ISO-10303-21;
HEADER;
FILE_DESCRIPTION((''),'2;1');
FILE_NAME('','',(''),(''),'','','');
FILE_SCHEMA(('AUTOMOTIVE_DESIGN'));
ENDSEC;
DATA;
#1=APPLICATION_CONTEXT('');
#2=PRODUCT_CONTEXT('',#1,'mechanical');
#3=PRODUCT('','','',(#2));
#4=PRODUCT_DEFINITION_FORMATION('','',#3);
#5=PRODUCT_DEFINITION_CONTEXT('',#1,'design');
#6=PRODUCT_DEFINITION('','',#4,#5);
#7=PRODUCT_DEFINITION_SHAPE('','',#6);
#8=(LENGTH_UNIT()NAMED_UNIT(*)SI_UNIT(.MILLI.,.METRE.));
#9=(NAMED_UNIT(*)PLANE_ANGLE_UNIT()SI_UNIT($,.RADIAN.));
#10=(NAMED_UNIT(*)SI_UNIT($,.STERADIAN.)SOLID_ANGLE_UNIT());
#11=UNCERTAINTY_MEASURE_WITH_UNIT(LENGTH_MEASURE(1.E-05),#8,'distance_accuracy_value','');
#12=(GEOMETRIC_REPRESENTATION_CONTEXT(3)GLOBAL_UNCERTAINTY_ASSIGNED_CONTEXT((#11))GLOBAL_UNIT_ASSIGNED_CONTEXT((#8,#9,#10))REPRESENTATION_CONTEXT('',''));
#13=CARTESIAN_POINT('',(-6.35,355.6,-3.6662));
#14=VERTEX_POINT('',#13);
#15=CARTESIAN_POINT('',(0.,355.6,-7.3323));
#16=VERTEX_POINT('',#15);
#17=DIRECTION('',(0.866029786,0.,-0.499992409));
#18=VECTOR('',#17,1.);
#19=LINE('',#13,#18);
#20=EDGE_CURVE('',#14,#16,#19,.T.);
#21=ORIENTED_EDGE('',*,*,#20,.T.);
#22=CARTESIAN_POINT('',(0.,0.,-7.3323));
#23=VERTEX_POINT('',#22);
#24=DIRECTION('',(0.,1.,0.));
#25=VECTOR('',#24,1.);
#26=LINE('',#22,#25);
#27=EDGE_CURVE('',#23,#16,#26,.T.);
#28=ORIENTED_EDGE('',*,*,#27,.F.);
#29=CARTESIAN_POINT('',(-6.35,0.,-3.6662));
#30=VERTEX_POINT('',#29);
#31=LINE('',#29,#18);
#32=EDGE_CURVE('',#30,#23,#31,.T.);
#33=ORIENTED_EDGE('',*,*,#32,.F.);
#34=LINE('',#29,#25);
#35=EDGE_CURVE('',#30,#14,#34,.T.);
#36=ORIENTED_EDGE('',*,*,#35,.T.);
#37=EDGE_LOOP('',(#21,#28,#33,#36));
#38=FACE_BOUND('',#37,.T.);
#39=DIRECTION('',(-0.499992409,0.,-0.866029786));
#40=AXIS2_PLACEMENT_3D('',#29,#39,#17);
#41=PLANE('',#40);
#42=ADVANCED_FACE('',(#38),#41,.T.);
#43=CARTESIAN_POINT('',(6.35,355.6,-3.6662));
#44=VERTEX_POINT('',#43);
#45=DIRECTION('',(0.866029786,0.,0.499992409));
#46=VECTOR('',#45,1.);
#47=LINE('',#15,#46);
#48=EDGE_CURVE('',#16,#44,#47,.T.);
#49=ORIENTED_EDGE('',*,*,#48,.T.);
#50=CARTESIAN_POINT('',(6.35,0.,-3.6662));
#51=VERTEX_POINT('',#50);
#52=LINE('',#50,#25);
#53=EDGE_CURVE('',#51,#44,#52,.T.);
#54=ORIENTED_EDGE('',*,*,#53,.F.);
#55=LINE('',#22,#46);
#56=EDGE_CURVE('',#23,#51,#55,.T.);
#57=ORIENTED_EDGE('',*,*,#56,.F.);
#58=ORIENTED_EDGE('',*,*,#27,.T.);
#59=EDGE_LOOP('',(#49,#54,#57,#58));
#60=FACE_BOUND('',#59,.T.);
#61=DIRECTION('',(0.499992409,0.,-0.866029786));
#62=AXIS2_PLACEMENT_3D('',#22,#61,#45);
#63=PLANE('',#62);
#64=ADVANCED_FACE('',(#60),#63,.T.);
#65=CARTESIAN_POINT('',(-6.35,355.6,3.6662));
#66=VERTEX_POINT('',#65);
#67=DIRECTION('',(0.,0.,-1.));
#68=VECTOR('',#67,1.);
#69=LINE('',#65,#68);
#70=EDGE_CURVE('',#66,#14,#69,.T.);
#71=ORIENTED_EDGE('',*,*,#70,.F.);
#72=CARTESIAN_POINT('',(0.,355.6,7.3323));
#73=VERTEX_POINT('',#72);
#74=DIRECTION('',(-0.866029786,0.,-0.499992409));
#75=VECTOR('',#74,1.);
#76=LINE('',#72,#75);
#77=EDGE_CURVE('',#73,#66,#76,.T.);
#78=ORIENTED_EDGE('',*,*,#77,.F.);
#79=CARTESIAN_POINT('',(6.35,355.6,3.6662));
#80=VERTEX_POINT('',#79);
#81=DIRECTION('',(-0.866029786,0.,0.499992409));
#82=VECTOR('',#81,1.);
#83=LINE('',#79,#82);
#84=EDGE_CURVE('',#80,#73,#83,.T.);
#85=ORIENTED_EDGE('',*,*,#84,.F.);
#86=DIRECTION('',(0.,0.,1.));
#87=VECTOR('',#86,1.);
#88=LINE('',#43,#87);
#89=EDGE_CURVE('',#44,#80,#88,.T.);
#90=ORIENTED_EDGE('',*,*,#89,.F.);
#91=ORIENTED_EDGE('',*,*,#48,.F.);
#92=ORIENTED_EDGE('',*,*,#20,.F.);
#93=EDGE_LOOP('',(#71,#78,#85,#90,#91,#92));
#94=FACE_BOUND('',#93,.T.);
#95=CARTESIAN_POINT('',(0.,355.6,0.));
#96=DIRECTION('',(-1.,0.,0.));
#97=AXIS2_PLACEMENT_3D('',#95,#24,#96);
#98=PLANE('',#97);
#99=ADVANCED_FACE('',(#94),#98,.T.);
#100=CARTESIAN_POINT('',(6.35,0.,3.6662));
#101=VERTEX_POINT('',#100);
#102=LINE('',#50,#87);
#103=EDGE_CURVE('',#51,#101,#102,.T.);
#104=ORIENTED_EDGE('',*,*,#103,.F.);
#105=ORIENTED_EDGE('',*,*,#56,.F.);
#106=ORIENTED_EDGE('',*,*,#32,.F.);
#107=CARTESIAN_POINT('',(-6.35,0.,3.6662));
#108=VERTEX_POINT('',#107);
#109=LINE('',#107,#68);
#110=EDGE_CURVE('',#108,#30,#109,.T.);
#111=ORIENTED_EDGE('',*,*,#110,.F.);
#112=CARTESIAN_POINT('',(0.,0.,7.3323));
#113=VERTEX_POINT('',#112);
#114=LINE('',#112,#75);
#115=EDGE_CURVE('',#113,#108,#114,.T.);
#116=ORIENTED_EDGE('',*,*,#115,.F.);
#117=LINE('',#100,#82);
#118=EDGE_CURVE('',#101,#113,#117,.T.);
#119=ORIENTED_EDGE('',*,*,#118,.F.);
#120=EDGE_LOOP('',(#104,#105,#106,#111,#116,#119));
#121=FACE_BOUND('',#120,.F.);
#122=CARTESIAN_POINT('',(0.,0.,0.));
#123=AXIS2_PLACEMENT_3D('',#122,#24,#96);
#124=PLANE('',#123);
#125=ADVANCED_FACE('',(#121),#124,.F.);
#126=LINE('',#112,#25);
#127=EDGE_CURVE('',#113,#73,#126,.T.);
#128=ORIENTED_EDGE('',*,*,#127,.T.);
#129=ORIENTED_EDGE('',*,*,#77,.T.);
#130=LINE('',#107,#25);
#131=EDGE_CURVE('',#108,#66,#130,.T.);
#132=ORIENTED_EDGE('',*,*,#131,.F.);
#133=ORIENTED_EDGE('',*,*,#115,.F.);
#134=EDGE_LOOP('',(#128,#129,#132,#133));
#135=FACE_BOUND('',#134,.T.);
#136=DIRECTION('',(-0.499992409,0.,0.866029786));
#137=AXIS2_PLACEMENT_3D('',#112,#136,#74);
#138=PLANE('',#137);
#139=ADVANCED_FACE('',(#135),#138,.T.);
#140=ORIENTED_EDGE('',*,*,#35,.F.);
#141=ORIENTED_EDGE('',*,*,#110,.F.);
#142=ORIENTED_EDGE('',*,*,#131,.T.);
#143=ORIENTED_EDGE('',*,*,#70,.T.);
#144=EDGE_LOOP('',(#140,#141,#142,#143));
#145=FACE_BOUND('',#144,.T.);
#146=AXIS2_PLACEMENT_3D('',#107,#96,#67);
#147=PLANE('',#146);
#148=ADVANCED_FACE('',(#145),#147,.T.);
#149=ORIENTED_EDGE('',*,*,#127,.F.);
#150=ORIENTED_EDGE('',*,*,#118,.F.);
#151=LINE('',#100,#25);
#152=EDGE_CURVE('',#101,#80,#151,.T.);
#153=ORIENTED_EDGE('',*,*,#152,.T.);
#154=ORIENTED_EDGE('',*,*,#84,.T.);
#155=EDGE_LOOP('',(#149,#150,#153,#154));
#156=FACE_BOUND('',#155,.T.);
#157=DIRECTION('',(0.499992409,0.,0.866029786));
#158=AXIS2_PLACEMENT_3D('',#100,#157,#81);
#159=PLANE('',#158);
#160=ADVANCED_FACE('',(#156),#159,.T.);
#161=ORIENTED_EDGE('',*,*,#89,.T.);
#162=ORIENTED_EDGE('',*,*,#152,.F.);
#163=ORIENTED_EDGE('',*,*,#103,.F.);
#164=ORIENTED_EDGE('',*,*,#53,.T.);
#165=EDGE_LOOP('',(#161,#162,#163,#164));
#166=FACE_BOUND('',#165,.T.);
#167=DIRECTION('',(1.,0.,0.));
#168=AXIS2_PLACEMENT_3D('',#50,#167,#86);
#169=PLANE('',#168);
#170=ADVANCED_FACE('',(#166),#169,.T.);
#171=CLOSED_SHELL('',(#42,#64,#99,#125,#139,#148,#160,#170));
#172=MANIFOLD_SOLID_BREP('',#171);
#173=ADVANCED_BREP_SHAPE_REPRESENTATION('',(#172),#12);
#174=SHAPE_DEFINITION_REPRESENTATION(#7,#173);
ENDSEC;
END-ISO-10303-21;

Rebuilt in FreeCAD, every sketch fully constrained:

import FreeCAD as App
import Part
import Sketcher

V = App.Vector
Q = App.Units.Quantity


def add_polygon(sketch, points):
    """Adds a closed chain of lines whose ends are joined by coincident constraints."""
    first, n = sketch.GeometryCount, len(points)
    for a, b in zip(points, points[1:] + points[:1]):
        sketch.addGeometry(Part.LineSegment(App.Vector(*a, 0), App.Vector(*b, 0)), False)
    for i in range(n):
        sketch.addConstraint(Sketcher.Constraint("Coincident", first + i, 2, first + (i + 1) % n, 1))

doc = App.newDocument("Part")
body = doc.addObject("PartDesign::Body", "Body")

sketch1 = doc.addObject("Sketcher::SketchObject", "Sketch")
body.addObject(sketch1)
sketch1.AttachmentSupport = (doc.XZ_Plane, [""])
sketch1.MapMode = "FlatFace"
add_polygon(sketch1, [(6, -4), (0, -7), (-6, -4), (-6, 4), (0, 7), (6, 4)])
sketch1.addConstraint([
    Sketcher.Constraint("Vertical", 2),
    Sketcher.Constraint("Vertical", 5),
    Sketcher.Constraint("Symmetric", 0, 2, 3, 2, -1, 1),
    Sketcher.Constraint("Symmetric", 1, 2, 4, 2, -1, 1),
    Sketcher.Constraint("PointOnObject", 0, 2, -2),
    Sketcher.Constraint("Parallel", 0, 3),
    Sketcher.Constraint("Horizontal", 2, 2, 4, 2),
    Sketcher.Constraint("DistanceX", 2, 2, 4, 2, Q("0.5 in")),
    Sketcher.Constraint("Angle", 0, Q("-150.0005 deg")),
    Sketcher.Constraint("DistanceY", 0, 2, 2, 2, Q("0.433 in")),
])
pad1 = doc.addObject("PartDesign::Pad", "Pad")
body.addObject(pad1)
pad1.Profile = sketch1
pad1.Length = Q("14 in")
pad1.Reversed = True

doc.recompute()
